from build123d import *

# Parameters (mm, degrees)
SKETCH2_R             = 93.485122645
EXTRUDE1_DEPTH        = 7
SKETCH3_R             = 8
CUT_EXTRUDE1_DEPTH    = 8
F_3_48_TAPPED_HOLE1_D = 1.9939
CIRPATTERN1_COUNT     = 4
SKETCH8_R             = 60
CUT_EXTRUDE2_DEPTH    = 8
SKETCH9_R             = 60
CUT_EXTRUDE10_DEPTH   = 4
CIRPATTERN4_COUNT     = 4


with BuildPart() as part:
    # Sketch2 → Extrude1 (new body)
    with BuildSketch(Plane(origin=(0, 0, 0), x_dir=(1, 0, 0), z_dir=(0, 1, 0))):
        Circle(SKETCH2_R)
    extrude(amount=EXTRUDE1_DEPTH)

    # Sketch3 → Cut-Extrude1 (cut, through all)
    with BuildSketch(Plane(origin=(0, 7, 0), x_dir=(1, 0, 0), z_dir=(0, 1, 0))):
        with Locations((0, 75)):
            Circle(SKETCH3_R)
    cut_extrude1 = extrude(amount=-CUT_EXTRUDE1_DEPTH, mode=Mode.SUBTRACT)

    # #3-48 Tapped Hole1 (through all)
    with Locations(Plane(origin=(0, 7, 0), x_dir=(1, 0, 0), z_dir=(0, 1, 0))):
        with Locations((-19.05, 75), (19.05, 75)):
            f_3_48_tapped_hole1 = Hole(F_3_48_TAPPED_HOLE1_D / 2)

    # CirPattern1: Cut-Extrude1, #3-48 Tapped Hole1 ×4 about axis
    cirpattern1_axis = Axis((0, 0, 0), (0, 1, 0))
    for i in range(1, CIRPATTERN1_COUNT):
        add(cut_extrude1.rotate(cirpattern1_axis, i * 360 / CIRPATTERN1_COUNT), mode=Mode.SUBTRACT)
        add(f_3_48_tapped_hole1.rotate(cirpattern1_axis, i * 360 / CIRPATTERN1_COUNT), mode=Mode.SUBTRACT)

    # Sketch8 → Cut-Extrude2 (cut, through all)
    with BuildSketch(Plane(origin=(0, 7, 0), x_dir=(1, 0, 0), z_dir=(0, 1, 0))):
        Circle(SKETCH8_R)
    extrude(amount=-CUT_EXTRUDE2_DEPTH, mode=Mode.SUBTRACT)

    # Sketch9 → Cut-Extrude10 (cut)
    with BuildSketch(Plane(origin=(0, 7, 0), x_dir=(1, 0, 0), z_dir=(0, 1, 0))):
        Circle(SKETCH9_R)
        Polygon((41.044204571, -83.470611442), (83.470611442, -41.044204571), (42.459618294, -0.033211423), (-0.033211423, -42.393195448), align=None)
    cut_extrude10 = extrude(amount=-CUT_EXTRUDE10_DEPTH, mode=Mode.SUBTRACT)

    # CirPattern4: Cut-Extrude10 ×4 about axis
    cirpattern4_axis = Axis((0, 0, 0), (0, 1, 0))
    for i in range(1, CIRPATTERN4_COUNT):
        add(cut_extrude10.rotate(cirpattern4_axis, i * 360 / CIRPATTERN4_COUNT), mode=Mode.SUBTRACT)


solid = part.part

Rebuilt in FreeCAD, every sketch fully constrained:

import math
import FreeCAD as App
import Part
import Sketcher
from FreeCAD import Vector
Q = App.Units.Quantity

doc = App.newDocument("Part")
body = doc.addObject("PartDesign::Body", "Body")

# Sketch on XZ plane
sketch1 = body.newObject("Sketcher::SketchObject", "Sketch")
sketch1.AttachmentSupport = (doc.getObject("XZ_Plane"), [""])
sketch1.MapMode = "FlatFace"
sketch1.addGeometry(Part.Circle(Vector(0, 0, 0), Vector(0, 0, 1), 93.485123), False)
sketch1.addConstraint([
    Sketcher.Constraint("Coincident", 0, 3, -1, 1),
    Sketcher.Constraint("Diameter", 0, Q("186.970245 mm")),
])
pad1 = body.newObject("PartDesign::Pad", "Pad")
pad1.Profile = sketch1
pad1.Length = 7
pad1.Reversed = True

# Sketch on XZ plane
sketch2 = body.newObject("Sketcher::SketchObject", "Sketch001")
sketch2.AttachmentSupport = (doc.getObject("XZ_Plane"), [""])
sketch2.MapMode = "FlatFace"
sketch2.AttachmentOffset = App.Placement(Vector(0, 0, -7), App.Rotation())
sketch2.addGeometry(Part.Circle(Vector(0, -75, 0), Vector(0, 0, 1), 8), False)
sketch2.addConstraint([
    Sketcher.Constraint("PointOnObject", 0, 3, -2),
    Sketcher.Constraint("Diameter", 0, Q("16 mm")),
    Sketcher.Constraint("DistanceY", 0, 3, -1, 1, Q("75 mm")),
])
pocket1 = body.newObject("PartDesign::Pocket", "Pocket")
pocket1.Profile = sketch2
pocket1.Type = "ThroughAll"
pocket1.Reversed = True

# Sketch on XZ plane
sketch3 = body.newObject("Sketcher::SketchObject", "Sketch002")
sketch3.AttachmentSupport = (doc.getObject("XZ_Plane"), [""])
sketch3.MapMode = "FlatFace"
sketch3.AttachmentOffset = App.Placement(Vector(0, 0, -7), App.Rotation())
sketch3.addGeometry([
    Part.Circle(Vector(-19.05, -75, 0), Vector(0, 0, 1), 0.99695),
    Part.Circle(Vector(19.05, -75, 0), Vector(0, 0, 1), 0.99695),
], False)
sketch3.addConstraint([
    Sketcher.Constraint("Equal", 0, 1),
    Sketcher.Constraint("Symmetric", 0, 3, 1, 3, -2),
    Sketcher.Constraint("DistanceY", 0, 3, -1, 1, Q("75 mm")),
    Sketcher.Constraint("Diameter", 0, Q("1.9939 mm")),
    Sketcher.Constraint("DistanceX", 0, 3, 1, 3, Q("38.1 mm")),
])
doc.recompute()
hole = body.newObject("PartDesign::Hole", "Hole")
hole.Profile = sketch3
hole.ThreadType = "None"
hole.Diameter = 1.9939
hole.DepthType = "ThroughAll"
hole.Reversed = True
doc.recompute()

polarpattern = body.newObject("PartDesign::PolarPattern", "PolarPattern")
polarpattern.Originals = [pocket1, hole]
polarpattern.Axis = (doc.getObject("Y_Axis"), [""])
polarpattern.Angle = 360
polarpattern.Occurrences = 4
body.Tip = polarpattern

# Sketch on XZ plane
sketch4 = body.newObject("Sketcher::SketchObject", "Sketch003")
sketch4.AttachmentSupport = (doc.getObject("XZ_Plane"), [""])
sketch4.MapMode = "FlatFace"
sketch4.AttachmentOffset = App.Placement(Vector(0, 0, -7), App.Rotation())
sketch4.addGeometry(Part.Circle(Vector(0, 0, 0), Vector(0, 0, 1), 60), False)
sketch4.addConstraint([
    Sketcher.Constraint("Coincident", 0, 3, -1, 1),
    Sketcher.Constraint("Diameter", 0, Q("120 mm")),
])
pocket2 = body.newObject("PartDesign::Pocket", "Pocket001")
pocket2.Profile = sketch4
pocket2.Type = "ThroughAll"
pocket2.Reversed = True

# Sketch on XZ plane
sketch5 = body.newObject("Sketcher::SketchObject", "Sketch004")
sketch5.AttachmentSupport = (doc.getObject("XZ_Plane"), [""])
sketch5.MapMode = "FlatFace"
sketch5.AttachmentOffset = App.Placement(Vector(0, 0, -7), App.Rotation())
sketch5.addGeometry([
    Part.ArcOfCircle(Part.Circle(Vector(0, 0, 0), Vector(0, 0, 1), 60), math.radians(75), math.radians(375)),
    Part.LineSegment(Vector(15.529143, 57.95555, 0), Vector(41.044205, 83.470611, 0)),
    Part.LineSegment(Vector(41.044205, 83.470611, 0), Vector(83.470611, 41.044205, 0)),
    Part.LineSegment(Vector(83.470611, 41.044205, 0), Vector(57.95555, 15.529143, 0)),
], False)
sketch5.addConstraint([
    Sketcher.Constraint("Coincident", 0, 1, 1, 1),
    Sketcher.Constraint("Coincident", 1, 2, 2, 1),
    Sketcher.Constraint("Coincident", 2, 2, 3, 1),
    Sketcher.Constraint("Coincident", 3, 2, 0, 2),
    Sketcher.Constraint("Coincident", 0, 3, -1, 1),
    Sketcher.Constraint("Perpendicular", 1, 2),
    Sketcher.Constraint("Perpendicular", 2, 3),
    Sketcher.Constraint("Equal", 1, 3),
    Sketcher.Constraint("Radius", 0, Q("60 mm")),
    Sketcher.Constraint("Angle", 1, Q("45 deg")),
    Sketcher.Constraint("Distance", 2, Q("60 mm")),
    Sketcher.Constraint("DistanceY", -1, 1, 1, 2, Q("83.470611 mm")),
])
pocket3 = body.newObject("PartDesign::Pocket", "Pocket002")
pocket3.Profile = sketch5
pocket3.Length = 4
pocket3.Reversed = True
doc.recompute()

polarpattern2 = body.newObject("PartDesign::PolarPattern", "PolarPattern001")
polarpattern2.Originals = [pocket3]
polarpattern2.Axis = (doc.getObject("Y_Axis"), [""])
polarpattern2.Angle = 360
polarpattern2.Occurrences = 4
body.Tip = polarpattern2

doc.recompute()
